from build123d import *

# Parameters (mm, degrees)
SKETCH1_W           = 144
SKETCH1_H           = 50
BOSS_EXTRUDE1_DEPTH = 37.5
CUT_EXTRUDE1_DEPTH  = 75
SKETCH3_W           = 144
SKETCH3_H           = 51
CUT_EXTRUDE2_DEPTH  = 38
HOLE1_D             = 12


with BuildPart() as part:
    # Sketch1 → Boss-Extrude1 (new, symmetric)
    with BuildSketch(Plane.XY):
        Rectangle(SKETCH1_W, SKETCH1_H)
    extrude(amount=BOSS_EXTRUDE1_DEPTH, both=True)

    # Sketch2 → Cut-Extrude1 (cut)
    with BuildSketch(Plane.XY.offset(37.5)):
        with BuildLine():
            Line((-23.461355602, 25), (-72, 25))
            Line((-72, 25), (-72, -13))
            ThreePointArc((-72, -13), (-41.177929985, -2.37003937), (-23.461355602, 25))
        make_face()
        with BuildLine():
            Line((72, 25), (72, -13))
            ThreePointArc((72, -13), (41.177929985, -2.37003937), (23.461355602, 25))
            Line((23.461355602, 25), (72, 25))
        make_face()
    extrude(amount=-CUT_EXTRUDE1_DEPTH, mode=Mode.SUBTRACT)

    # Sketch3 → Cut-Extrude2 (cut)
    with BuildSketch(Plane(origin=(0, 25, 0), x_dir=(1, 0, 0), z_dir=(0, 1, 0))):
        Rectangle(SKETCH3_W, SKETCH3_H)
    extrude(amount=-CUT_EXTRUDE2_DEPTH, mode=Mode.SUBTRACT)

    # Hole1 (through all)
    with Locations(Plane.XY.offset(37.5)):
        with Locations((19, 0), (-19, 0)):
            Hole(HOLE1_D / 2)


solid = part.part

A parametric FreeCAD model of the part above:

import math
import FreeCAD as App
import Part
import Sketcher
from FreeCAD import Vector


def add_polygon(sketch, points):
    """Adds a closed chain of lines whose ends are joined by coincident constraints."""
    first, n = sketch.GeometryCount, len(points)
    for a, b in zip(points, points[1:] + points[:1]):
        sketch.addGeometry(Part.LineSegment(App.Vector(*a, 0), App.Vector(*b, 0)), False)
    for i in range(n):
        sketch.addConstraint(Sketcher.Constraint("Coincident", first + i, 2, first + (i + 1) % n, 1))

doc = App.newDocument("Part")
body = doc.addObject("PartDesign::Body", "Body")

# Sketch on XY plane
sketch1 = body.newObject("Sketcher::SketchObject", "Sketch")
sketch1.AttachmentSupport = (doc.getObject("XY_Plane"), [""])
sketch1.MapMode = "FlatFace"
add_polygon(sketch1, [(-72, 25), (-72, -25), (72, -25), (72, 25)])  # lines 0-3
sketch1.addConstraint(Sketcher.Constraint("Vertical", 0))
sketch1.addConstraint(Sketcher.Constraint("Horizontal", 1))
sketch1.addConstraint(Sketcher.Constraint("Vertical", 2))
sketch1.addConstraint(Sketcher.Constraint("Horizontal", 3))
sketch1.addConstraint(Sketcher.Constraint("Symmetric", 0, 2, 2, 2, -1, 1))
sketch1.addConstraint(Sketcher.Constraint("DistanceX", 1, 1, 1, 2, 144.0))
sketch1.addConstraint(Sketcher.Constraint("DistanceY", 0, 2, 0, 1, 50.0))
pad1 = body.newObject("PartDesign::Pad", "Pad")
pad1.Profile = sketch1
pad1.Length = 75
pad1.Midplane = True

# Sketch on XY plane
sketch2 = body.newObject("Sketcher::SketchObject", "Sketch001")
sketch2.AttachmentSupport = (doc.getObject("XY_Plane"), [""])
sketch2.MapMode = "FlatFace"
sketch2.AttachmentOffset = App.Placement(Vector(0, 0, 37.5), App.Rotation())
sketch2.addGeometry(Part.LineSegment(Vector(-23, 25, 0), Vector(-72, 25, 0)), False)
sketch2.addGeometry(Part.LineSegment(Vector(-72, 25, 0), Vector(-72, -13, 0)), False)
sketch2.addGeometry(Part.ArcOfCircle(Part.Circle(Vector(-72, 37, 0), Vector(0, 0, 1), 50), math.radians(-90), math.radians(-14)), False)
sketch2.addGeometry(Part.LineSegment(Vector(72, -13, 0), Vector(72, 25, 0)), False)
sketch2.addGeometry(Part.LineSegment(Vector(72, 25, 0), Vector(23, 25, 0)), False)
sketch2.addGeometry(Part.ArcOfCircle(Part.Circle(Vector(72, 37, 0), Vector(0, 0, 1), 50), math.radians(-166), math.radians(-90)), False)
sketch2.addConstraint(Sketcher.Constraint("Coincident", 0, 2, 1, 1))
sketch2.addConstraint(Sketcher.Constraint("Coincident", 1, 2, 2, 1))
sketch2.addConstraint(Sketcher.Constraint("Coincident", 2, 2, 0, 1))
sketch2.addConstraint(Sketcher.Constraint("Coincident", 3, 2, 4, 1))
sketch2.addConstraint(Sketcher.Constraint("Coincident", 4, 2, 5, 1))
sketch2.addConstraint(Sketcher.Constraint("Coincident", 5, 2, 3, 1))
sketch2.addConstraint(Sketcher.Constraint("Horizontal", 0))
sketch2.addConstraint(Sketcher.Constraint("Vertical", 1))
sketch2.addConstraint(Sketcher.Constraint("Vertical", 3))
sketch2.addConstraint(Sketcher.Constraint("Horizontal", 4))
sketch2.addConstraint(Sketcher.Constraint("Equal", 2, 5))
sketch2.addConstraint(Sketcher.Constraint("Symmetric", 2, 3, 5, 3, -2))
sketch2.addConstraint(Sketcher.Constraint("Symmetric", 0, 2, 3, 2, -2))
sketch2.addConstraint(Sketcher.Constraint("Vertical", 2, 3, 0, 2))
sketch2.addConstraint(Sketcher.Constraint("Radius", 2, 50.0))
sketch2.addConstraint(Sketcher.Constraint("DistanceY", 1, 2, 1, 1, 38.0))
sketch2.addConstraint(Sketcher.Constraint("DistanceX", 2, 3, -1, 1, 72.0))
sketch2.addConstraint(Sketcher.Constraint("DistanceY", -1, 1, 2, 3, 37.0))
pocket1 = body.newObject("PartDesign::Pocket", "Pocket")
pocket1.Profile = sketch2
pocket1.Length = 75

# Sketch on XZ plane
sketch3 = body.newObject("Sketcher::SketchObject", "Sketch002")
sketch3.AttachmentSupport = (doc.getObject("XZ_Plane"), [""])
sketch3.MapMode = "FlatFace"
sketch3.AttachmentOffset = App.Placement(Vector(0, 0, -25), App.Rotation())
add_polygon(sketch3, [(-72, -26), (-72, 26), (72, 26), (72, -26)])  # lines 0-3
sketch3.addConstraint(Sketcher.Constraint("Vertical", 0))
sketch3.addConstraint(Sketcher.Constraint("Horizontal", 1))
sketch3.addConstraint(Sketcher.Constraint("Vertical", 2))
sketch3.addConstraint(Sketcher.Constraint("Horizontal", 3))
sketch3.addConstraint(Sketcher.Constraint("Symmetric", 0, 2, 2, 2, -1, 1))
sketch3.addConstraint(Sketcher.Constraint("DistanceX", 1, 1, 1, 2, 144.0))
sketch3.addConstraint(Sketcher.Constraint("DistanceY", 0, 1, 0, 2, 51.0))
pocket2 = body.newObject("PartDesign::Pocket", "Pocket001")
pocket2.Profile = sketch3
pocket2.Length = 38
pocket2.Reversed = True

# Sketch on XY plane
sketch4 = body.newObject("Sketcher::SketchObject", "Sketch003")
sketch4.AttachmentSupport = (doc.getObject("XY_Plane"), [""])
sketch4.MapMode = "FlatFace"
sketch4.AttachmentOffset = App.Placement(Vector(0, 0, 37.5), App.Rotation())
sketch4.addGeometry(Part.Circle(Vector(19, 0, 0), Vector(0, 0, 1), 6), False)
sketch4.addGeometry(Part.Circle(Vector(-19, 0, 0), Vector(0, 0, 1), 6), False)
sketch4.addConstraint(Sketcher.Constraint("Equal", 0, 1))
sketch4.addConstraint(Sketcher.Constraint("Symmetric", 0, 3, 1, 3, -1, 1))
sketch4.addConstraint(Sketcher.Constraint("PointOnObject", 0, 3, -1))
sketch4.addConstraint(Sketcher.Constraint("Diameter", 0, 12.0))
sketch4.addConstraint(Sketcher.Constraint("DistanceX", -1, 1, 0, 3, 19.0))
doc.recompute()
hole = body.newObject("PartDesign::Hole", "Hole")
hole.Profile = sketch4
hole.ThreadType = "None"
hole.Diameter = 12
hole.DepthType = "ThroughAll"

doc.recompute()
